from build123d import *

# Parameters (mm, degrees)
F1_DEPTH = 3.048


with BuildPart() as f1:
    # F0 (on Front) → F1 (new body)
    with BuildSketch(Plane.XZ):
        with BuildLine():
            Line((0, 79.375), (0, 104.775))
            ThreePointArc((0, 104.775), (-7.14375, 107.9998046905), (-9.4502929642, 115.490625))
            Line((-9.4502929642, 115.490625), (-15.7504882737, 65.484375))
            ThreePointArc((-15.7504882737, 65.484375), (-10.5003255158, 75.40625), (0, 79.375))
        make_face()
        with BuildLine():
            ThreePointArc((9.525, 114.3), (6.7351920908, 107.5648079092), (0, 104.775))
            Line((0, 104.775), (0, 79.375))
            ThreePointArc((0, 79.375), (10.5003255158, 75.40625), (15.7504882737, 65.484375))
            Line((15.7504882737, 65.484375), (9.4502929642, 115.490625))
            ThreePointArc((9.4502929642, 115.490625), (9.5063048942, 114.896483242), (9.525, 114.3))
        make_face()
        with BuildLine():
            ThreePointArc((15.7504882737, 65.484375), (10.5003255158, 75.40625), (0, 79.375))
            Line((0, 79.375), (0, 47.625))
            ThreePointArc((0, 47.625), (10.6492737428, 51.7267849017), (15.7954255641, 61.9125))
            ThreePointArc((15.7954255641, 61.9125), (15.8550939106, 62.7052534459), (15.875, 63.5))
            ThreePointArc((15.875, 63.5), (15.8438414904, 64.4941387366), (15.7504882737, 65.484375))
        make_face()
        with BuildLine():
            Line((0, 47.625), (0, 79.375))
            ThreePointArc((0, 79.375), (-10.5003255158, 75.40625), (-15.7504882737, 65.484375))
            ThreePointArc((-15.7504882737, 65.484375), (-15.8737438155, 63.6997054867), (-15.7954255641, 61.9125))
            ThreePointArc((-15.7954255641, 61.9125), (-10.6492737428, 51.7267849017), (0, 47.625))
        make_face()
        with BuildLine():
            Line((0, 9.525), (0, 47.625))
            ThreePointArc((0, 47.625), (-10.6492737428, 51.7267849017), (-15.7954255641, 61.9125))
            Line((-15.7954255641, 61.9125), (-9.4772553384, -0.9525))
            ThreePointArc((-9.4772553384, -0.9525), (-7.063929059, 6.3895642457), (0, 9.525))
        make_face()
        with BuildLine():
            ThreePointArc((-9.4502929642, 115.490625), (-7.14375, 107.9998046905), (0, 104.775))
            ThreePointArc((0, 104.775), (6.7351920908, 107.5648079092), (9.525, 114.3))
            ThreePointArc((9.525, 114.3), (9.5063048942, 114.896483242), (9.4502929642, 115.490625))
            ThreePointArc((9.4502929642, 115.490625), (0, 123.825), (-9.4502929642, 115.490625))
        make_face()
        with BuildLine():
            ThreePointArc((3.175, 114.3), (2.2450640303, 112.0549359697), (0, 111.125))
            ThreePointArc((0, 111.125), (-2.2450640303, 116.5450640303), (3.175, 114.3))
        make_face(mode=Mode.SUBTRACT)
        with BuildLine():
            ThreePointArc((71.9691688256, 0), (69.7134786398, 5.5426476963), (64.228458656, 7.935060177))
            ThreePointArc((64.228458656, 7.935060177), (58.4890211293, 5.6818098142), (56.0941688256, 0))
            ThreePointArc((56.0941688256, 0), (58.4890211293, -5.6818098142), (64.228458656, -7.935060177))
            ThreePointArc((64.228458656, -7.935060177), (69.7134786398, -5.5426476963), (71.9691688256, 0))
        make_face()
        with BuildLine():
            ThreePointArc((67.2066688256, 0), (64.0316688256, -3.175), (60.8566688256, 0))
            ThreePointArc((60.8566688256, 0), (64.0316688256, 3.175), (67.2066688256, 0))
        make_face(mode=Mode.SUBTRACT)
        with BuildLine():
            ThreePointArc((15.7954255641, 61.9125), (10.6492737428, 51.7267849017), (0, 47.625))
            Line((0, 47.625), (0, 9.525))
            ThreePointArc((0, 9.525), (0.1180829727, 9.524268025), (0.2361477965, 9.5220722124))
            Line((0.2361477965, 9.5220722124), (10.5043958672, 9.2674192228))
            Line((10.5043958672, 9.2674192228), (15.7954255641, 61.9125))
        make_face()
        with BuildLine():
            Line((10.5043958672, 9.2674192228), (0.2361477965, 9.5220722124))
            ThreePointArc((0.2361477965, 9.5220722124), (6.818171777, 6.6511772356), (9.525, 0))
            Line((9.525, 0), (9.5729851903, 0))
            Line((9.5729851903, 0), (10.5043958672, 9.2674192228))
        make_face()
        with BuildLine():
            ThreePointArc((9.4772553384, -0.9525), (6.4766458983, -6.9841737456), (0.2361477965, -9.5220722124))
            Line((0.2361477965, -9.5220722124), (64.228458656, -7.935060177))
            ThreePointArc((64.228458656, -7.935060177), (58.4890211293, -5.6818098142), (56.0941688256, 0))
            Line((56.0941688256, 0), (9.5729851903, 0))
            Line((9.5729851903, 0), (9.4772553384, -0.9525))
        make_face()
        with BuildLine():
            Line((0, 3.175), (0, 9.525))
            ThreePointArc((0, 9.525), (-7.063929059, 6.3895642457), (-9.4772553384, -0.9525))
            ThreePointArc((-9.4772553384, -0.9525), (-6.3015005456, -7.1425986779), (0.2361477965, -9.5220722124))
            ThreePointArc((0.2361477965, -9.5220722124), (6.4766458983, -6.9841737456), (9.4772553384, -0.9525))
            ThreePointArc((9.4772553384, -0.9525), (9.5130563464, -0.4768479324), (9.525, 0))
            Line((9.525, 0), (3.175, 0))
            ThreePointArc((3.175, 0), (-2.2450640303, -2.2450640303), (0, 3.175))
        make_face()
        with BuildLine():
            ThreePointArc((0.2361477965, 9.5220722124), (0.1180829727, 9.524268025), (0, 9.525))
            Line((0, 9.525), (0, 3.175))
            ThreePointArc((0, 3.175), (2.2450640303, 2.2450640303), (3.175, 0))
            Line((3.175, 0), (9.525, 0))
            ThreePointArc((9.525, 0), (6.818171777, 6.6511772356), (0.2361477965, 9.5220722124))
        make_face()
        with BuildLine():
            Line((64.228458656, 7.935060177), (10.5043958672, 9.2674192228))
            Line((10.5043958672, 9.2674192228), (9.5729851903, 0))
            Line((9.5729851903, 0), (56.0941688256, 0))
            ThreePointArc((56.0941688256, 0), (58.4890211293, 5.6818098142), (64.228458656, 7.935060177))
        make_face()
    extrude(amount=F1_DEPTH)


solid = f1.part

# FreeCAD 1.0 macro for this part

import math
import FreeCAD as App
import Part
import Sketcher
Q = App.Units.Quantity

doc = App.newDocument("Part")
params = doc.addObject("Spreadsheet::Sheet", "Params")
for row, (alias, value) in enumerate([
    ("sketch1_diameter", "0.25 in"),
    ("sketch1_radius", "0.3125 in"),
    ("sketch1_radius2", "0.625 in"),
    ("sketch1_radius3", "0.375 in"),
    ("pad1_length", "0.12 in"),
], start=1):
    params.set(f"A{row}", alias)
    params.set(f"B{row}", "=" + value)
    params.setAlias(f"B{row}", alias)

body = doc.addObject("PartDesign::Body", "Body")

# Sketch on XZ plane
sketch1 = doc.addObject("Sketcher::SketchObject", "Sketch")
body.addObject(sketch1)
sketch1.AttachmentSupport = (doc.XZ_Plane, [""])
sketch1.MapMode = "FlatFace"
sketch1.addGeometry([
    Part.ArcOfCircle(Part.Circle(App.Vector(64.032, 0, 0), App.Vector(0, 0, 1), 7.938), math.radians(0), math.radians(89)),  # 0
    Part.LineSegment(App.Vector(64.228, 7.935, 0), App.Vector(10.504, 9.267, 0)),  # 1
    Part.LineSegment(App.Vector(10.504, 9.267, 0), App.Vector(15.795, 61.913, 0)),  # 2
    Part.ArcOfCircle(Part.Circle(App.Vector(0, 63.5, 0), App.Vector(0, 0, 1), 15.875), math.radians(-5.74), math.radians(0)),  # 3
    Part.ArcOfCircle(Part.Circle(App.Vector(0, 63.5, 0), App.Vector(0, 0, 1), 15.875), math.radians(0), math.radians(7.18)),  # 4
    Part.LineSegment(App.Vector(15.75, 65.484, 0), App.Vector(9.45, 115.491, 0)),  # 5
    Part.ArcOfCircle(Part.Circle(App.Vector(0, 114.3, 0), App.Vector(0, 0, 1), 9.525), math.radians(7), math.radians(173)),  # 6
    Part.LineSegment(App.Vector(-9.45, 115.491, 0), App.Vector(-15.75, 65.484, 0)),  # 7
    Part.ArcOfCircle(Part.Circle(App.Vector(0, 63.5, 0), App.Vector(0, 0, 1), 15.875), math.radians(172.82), math.radians(185.74)),  # 8
    Part.LineSegment(App.Vector(-15.795, 61.913, 0), App.Vector(-9.477, -0.953, 0)),  # 9
    Part.ArcOfCircle(Part.Circle(App.Vector(0, 0, 0), App.Vector(0, 0, 1), 9.525), math.radians(-174), math.radians(-89)),  # 10
    Part.LineSegment(App.Vector(0.236, -9.522, 0), App.Vector(64.228, -7.935, 0)),  # 11
    Part.ArcOfCircle(Part.Circle(App.Vector(64.032, 0, 0), App.Vector(0, 0, 1), 7.938), math.radians(-89), math.radians(0)),  # 12
    Part.ArcOfCircle(Part.Circle(App.Vector(0, 0, 0), App.Vector(0, 0, 1), 3.175), math.radians(90), math.radians(360)),  # 13
    Part.ArcOfCircle(Part.Circle(App.Vector(0, 0, 0), App.Vector(0, 0, 1), 3.175), math.radians(0), math.radians(90)),  # 14
    Part.LineSegment(App.Vector(9.525, 0, 0), App.Vector(9.573, 0, 0)),  # 15
    Part.LineSegment(App.Vector(9.573, 0, 0), App.Vector(9.477, -0.953, 0)),  # 16
    Part.ArcOfCircle(Part.Circle(App.Vector(0, 0, 0), App.Vector(0, 0, 1), 9.525), math.radians(-5.74), math.radians(0)),  # 17
    Part.Circle(App.Vector(64.032, 0, 0), App.Vector(0, 0, 1), 3.175),  # 18
    Part.ArcOfCircle(Part.Circle(App.Vector(0, 114.3, 0), App.Vector(0, 0, 1), 3.175), math.radians(0), math.radians(270)),  # 19
    Part.ArcOfCircle(Part.Circle(App.Vector(0, 114.3, 0), App.Vector(0, 0, 1), 3.175), math.radians(-90), math.radians(0)),  # 20
], False)
sketch1.addConstraint([
    Sketcher.Constraint("Tangent", 0, 2, 1, 1),
    Sketcher.Constraint("Coincident", 1, 2, 2, 1),
    Sketcher.Constraint("Tangent", 2, 2, 3, 1),
    Sketcher.Constraint("Tangent", 3, 2, 4, 1),
    Sketcher.Constraint("Tangent", 4, 2, 5, 1),
    Sketcher.Constraint("Tangent", 5, 2, 6, 1),
    Sketcher.Constraint("Tangent", 6, 2, 7, 1),
    Sketcher.Constraint("Tangent", 7, 2, 8, 1),
    Sketcher.Constraint("Tangent", 8, 2, 9, 1),
    Sketcher.Constraint("Tangent", 9, 2, 10, 1),
    Sketcher.Constraint("Tangent", 10, 2, 11, 1),
    Sketcher.Constraint("Tangent", 11, 2, 12, 1),
    Sketcher.Constraint("Tangent", 12, 2, 0, 1),
    Sketcher.Constraint("Tangent", 13, 1, 14, 2),
    Sketcher.Constraint("Coincident", 14, 1, 13, 2),
    Sketcher.Constraint("Coincident", 15, 2, 16, 1),
    Sketcher.Constraint("Tangent", 16, 2, 17, 1),
    Sketcher.Constraint("Coincident", 17, 2, 15, 1),
    Sketcher.Constraint("Tangent", 19, 1, 20, 2),
    Sketcher.Constraint("Coincident", 20, 1, 19, 2),
    Sketcher.Constraint("Horizontal", 15),
    Sketcher.Constraint("Coincident", 10, 3, -1, 1),
    Sketcher.Constraint("Coincident", 13, 3, -1, 1),
    Sketcher.Constraint("Coincident", 17, 3, -1, 1),
    Sketcher.Constraint("Coincident", 8, 3, 3, 3),
    Sketcher.Constraint("Coincident", 18, 3, 0, 3),
    Sketcher.Constraint("Coincident", 19, 3, 6, 3),
    Sketcher.Constraint("Equal", 3, 4),
    Sketcher.Constraint("Equal", 4, 8),
    Sketcher.Constraint("Equal", 6, 10),
    Sketcher.Constraint("Equal", 0, 12),
    Sketcher.Constraint("Equal", 10, 17),
    Sketcher.Constraint("Equal", 14, 18),
    Sketcher.Constraint("Equal", 18, 19),
    Sketcher.Constraint("Symmetric", 5, 2, 6, 2, -2),
    Sketcher.Constraint("Symmetric", 0, 2, 11, 2, -1),
    Sketcher.Constraint("PointOnObject", 12, 2, -1),
    Sketcher.Constraint("PointOnObject", 13, 1, -2),
    Sketcher.Constraint("PointOnObject", 14, 1, -1),
    Sketcher.Constraint("PointOnObject", 15, 2, -1),
    Sketcher.Constraint("PointOnObject", 20, 1, -2),
    Sketcher.Constraint("Parallel", 2, 16),
    Sketcher.Constraint("Horizontal", 8, 3, 3, 2),
    Sketcher.Constraint("Horizontal", 2, 2, 8, 2),
    Sketcher.Constraint("Horizontal", 20, 3, 19, 1),
    Sketcher.Constraint("Diameter", 18, Q("0.25 in")),
    Sketcher.Constraint("Radius", 0, Q("0.3125 in")),
    Sketcher.Constraint("Radius", 3, Q("0.625 in")),
    Sketcher.Constraint("Radius", 6, Q("0.375 in")),
    Sketcher.Constraint("DistanceY", 3, 3, 6, 3, Q("2 in")),
    Sketcher.Constraint("DistanceY", -1, 1, 3, 3, Q("2.5 in")),
    Sketcher.Constraint("Distance", 1, Q("53.740582 mm")),
])
sketch1.setExpression("Constraints[45]", "Params.sketch1_diameter")
sketch1.setExpression("Constraints[46]", "Params.sketch1_radius")
sketch1.setExpression("Constraints[47]", "Params.sketch1_radius2")
sketch1.setExpression("Constraints[48]", "Params.sketch1_radius3")
pad1 = doc.addObject("PartDesign::Pad", "Pad")
body.addObject(pad1)
pad1.Profile = sketch1
pad1.setExpression("Length", "Params.pad1_length")

doc.recompute()
